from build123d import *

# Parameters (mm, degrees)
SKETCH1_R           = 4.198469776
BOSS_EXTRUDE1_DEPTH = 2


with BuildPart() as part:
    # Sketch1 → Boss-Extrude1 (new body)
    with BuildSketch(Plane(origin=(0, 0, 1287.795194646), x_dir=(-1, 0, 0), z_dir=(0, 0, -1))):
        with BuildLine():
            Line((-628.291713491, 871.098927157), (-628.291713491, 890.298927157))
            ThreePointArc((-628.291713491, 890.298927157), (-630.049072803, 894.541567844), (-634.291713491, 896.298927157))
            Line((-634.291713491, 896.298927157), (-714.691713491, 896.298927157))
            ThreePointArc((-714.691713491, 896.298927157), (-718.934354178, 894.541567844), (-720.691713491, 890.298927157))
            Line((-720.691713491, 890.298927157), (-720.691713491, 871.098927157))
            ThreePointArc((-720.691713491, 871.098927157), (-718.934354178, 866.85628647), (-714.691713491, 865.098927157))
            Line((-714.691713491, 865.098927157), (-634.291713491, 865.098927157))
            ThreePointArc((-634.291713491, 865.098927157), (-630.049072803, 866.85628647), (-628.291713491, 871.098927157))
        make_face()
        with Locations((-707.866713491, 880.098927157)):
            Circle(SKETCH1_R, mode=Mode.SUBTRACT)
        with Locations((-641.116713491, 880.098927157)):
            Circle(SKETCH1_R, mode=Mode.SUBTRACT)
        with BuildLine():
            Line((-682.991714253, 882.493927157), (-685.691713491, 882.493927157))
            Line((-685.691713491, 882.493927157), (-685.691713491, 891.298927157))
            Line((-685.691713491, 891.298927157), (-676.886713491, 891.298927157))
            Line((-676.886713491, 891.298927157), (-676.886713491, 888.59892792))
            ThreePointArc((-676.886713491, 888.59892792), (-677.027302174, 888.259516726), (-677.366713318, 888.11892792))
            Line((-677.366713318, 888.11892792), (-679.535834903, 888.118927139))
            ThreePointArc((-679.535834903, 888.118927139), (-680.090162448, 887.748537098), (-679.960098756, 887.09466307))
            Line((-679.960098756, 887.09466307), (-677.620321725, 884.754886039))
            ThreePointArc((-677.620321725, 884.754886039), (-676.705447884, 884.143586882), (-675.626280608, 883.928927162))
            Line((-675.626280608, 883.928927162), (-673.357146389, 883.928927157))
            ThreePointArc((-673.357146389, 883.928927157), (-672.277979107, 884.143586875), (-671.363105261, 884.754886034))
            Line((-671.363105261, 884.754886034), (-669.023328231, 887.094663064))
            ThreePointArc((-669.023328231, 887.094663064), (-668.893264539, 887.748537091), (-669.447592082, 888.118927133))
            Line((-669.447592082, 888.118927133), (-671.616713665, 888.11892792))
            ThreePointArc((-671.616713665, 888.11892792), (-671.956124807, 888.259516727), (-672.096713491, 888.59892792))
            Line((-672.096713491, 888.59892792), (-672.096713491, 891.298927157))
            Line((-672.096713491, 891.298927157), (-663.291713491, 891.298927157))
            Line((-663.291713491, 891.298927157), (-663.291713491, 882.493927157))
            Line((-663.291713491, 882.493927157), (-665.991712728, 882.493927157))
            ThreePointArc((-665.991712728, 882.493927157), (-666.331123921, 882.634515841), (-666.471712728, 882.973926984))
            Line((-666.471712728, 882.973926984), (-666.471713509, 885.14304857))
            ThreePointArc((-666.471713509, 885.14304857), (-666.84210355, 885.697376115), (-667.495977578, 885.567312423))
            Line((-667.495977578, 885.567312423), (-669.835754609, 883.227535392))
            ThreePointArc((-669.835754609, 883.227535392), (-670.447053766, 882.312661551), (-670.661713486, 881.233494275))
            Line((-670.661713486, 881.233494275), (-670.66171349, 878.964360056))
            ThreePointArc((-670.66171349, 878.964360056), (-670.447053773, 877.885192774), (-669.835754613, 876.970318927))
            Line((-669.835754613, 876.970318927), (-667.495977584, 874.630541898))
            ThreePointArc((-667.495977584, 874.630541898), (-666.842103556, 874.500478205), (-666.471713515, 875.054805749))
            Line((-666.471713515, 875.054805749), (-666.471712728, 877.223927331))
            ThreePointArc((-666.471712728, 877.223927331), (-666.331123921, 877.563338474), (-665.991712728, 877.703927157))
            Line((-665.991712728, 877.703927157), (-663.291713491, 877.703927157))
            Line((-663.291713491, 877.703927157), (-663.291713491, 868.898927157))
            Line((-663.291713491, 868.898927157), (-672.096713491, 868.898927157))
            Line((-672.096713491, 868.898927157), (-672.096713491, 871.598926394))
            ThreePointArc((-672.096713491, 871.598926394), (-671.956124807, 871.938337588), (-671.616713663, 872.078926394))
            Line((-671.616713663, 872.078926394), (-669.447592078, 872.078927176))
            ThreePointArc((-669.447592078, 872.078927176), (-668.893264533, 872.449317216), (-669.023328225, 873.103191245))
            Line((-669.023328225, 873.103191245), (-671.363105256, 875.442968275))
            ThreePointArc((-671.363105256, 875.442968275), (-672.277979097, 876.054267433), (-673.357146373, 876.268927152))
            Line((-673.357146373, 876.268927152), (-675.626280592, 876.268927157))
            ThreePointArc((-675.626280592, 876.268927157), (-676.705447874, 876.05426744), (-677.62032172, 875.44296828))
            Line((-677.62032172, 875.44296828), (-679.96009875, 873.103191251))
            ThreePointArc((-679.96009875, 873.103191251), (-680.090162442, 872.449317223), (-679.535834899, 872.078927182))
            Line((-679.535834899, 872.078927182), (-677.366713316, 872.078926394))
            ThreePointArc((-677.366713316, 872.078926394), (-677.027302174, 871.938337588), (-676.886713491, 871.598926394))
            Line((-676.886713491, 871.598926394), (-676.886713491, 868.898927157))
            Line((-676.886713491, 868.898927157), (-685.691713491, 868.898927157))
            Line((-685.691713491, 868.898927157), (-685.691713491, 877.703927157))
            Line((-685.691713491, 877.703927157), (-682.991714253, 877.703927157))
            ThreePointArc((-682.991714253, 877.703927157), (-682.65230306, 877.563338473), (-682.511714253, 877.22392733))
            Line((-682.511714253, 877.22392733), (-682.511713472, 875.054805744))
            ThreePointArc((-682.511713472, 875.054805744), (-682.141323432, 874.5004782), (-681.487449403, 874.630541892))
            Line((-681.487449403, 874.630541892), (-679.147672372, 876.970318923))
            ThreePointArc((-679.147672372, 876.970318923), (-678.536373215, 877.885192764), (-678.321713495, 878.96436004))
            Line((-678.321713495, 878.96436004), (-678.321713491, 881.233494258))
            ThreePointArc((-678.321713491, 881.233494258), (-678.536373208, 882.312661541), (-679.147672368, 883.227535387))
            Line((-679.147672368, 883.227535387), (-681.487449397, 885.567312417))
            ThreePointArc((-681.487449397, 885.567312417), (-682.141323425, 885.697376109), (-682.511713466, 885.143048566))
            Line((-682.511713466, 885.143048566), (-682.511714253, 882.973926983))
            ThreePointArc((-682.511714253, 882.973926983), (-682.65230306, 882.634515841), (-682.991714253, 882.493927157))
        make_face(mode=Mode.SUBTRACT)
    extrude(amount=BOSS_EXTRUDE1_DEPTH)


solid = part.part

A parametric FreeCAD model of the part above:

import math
import FreeCAD as App
import Part
import Sketcher
from FreeCAD import Vector
Q = App.Units.Quantity

doc = App.newDocument("Part")
body = doc.addObject("PartDesign::Body", "Body")

# Sketch on XY plane
sketch1 = body.newObject("Sketcher::SketchObject", "Sketch")
sketch1.AttachmentSupport = (doc.getObject("XY_Plane"), [""])
sketch1.MapMode = "FlatFace"
sketch1.AttachmentOffset = App.Placement(Vector(0, 0, 1287.795195), App.Rotation())
sketch1.addGeometry([
    Part.LineSegment(Vector(628.291713, 871.098927, 0), Vector(628.291713, 890.298927, 0)),  # 0
    Part.ArcOfCircle(Part.Circle(Vector(634.291713, 890.298927, 0), Vector(0, 0, 1), 6), math.radians(90), math.radians(180)),  # 1
    Part.LineSegment(Vector(634.291713, 896.298927, 0), Vector(714.691713, 896.298927, 0)),  # 2
    Part.ArcOfCircle(Part.Circle(Vector(714.691713, 890.298927, 0), Vector(0, 0, 1), 6), math.radians(0), math.radians(90)),  # 3
    Part.LineSegment(Vector(720.691713, 890.298927, 0), Vector(720.691713, 871.098927, 0)),  # 4
    Part.ArcOfCircle(Part.Circle(Vector(714.691713, 871.098927, 0), Vector(0, 0, 1), 6), math.radians(-90), math.radians(0)),  # 5
    Part.LineSegment(Vector(714.691713, 865.098927, 0), Vector(634.291713, 865.098927, 0)),  # 6
    Part.ArcOfCircle(Part.Circle(Vector(634.291713, 871.098927, 0), Vector(0, 0, 1), 6), math.radians(180), math.radians(270)),  # 7
    Part.ArcOfCircle(Part.Circle(Vector(682.991714, 882.973927, 0), Vector(0, 0, 1), 0.48), math.radians(-179.999979), math.radians(-90)),  # 8
    Part.LineSegment(Vector(682.991714, 882.493927, 0), Vector(685.691713, 882.493927, 0)),  # 9
    Part.LineSegment(Vector(685.691713, 882.493927, 0), Vector(685.691713, 891.298927, 0)),  # 10
    Part.LineSegment(Vector(685.691713, 891.298927, 0), Vector(676.886713, 891.298927, 0)),  # 11
    Part.LineSegment(Vector(676.886713, 891.298927, 0), Vector(676.886713, 888.598928, 0)),  # 12
    Part.ArcOfCircle(Part.Circle(Vector(677.366713, 888.598928, 0), Vector(0, 0, 1), 0.48), math.radians(180), math.radians(269.99998)),  # 13
    Part.LineSegment(Vector(677.366713, 888.118928, 0), Vector(679.535835, 888.118927, 0)),  # 14
    Part.ArcOfCircle(Part.Circle(Vector(679.535835, 887.518927, 0), Vector(0, 0, 1), 0.6), math.radians(-45), math.radians(89.999979)),  # 15
    Part.LineSegment(Vector(679.960099, 887.094663, 0), Vector(677.620322, 884.754886, 0)),  # 16
    Part.ArcOfCircle(Part.Circle(Vector(675.626281, 886.748927, 0), Vector(0, 0, 1), 2.82), math.radians(-90), math.radians(-45)),  # 17
    Part.LineSegment(Vector(675.626281, 883.928927, 0), Vector(673.357146, 883.928927, 0)),  # 18
    Part.ArcOfCircle(Part.Circle(Vector(673.357146, 886.748927, 0), Vector(0, 0, 1), 2.82), math.radians(-135), math.radians(-90)),  # 19
    Part.LineSegment(Vector(671.363105, 884.754886, 0), Vector(669.023328, 887.094663, 0)),  # 20
    Part.ArcOfCircle(Part.Circle(Vector(669.447592, 887.518927, 0), Vector(0, 0, 1), 0.6), math.radians(90.000021), math.radians(225)),  # 21
    Part.LineSegment(Vector(669.447592, 888.118927, 0), Vector(671.616714, 888.118928, 0)),  # 22
    Part.ArcOfCircle(Part.Circle(Vector(671.616713, 888.598928, 0), Vector(0, 0, 1), 0.48), math.radians(-89.999979), math.radians(0)),  # 23
    Part.LineSegment(Vector(672.096713, 888.598928, 0), Vector(672.096713, 891.298927, 0)),  # 24
    Part.LineSegment(Vector(672.096713, 891.298927, 0), Vector(663.291713, 891.298927, 0)),  # 25
    Part.LineSegment(Vector(663.291713, 891.298927, 0), Vector(663.291713, 882.493927, 0)),  # 26
    Part.LineSegment(Vector(663.291713, 882.493927, 0), Vector(665.991713, 882.493927, 0)),  # 27
    Part.ArcOfCircle(Part.Circle(Vector(665.991713, 882.973927, 0), Vector(0, 0, 1), 0.48), math.radians(-90), math.radians(-0.000021)),  # 28
    Part.LineSegment(Vector(666.471713, 882.973927, 0), Vector(666.471714, 885.143049, 0)),  # 29
    Part.ArcOfCircle(Part.Circle(Vector(667.071714, 885.143048, 0), Vector(0, 0, 1), 0.6), math.radians(45), math.radians(179.999979)),  # 30
    Part.LineSegment(Vector(667.495978, 885.567312, 0), Vector(669.835755, 883.227535, 0)),  # 31
    Part.ArcOfCircle(Part.Circle(Vector(667.841713, 881.233494, 0), Vector(0, 0, 1), 2.82), math.radians(0), math.radians(45)),  # 32
    Part.LineSegment(Vector(670.661713, 881.233494, 0), Vector(670.661713, 878.96436, 0)),  # 33
    Part.ArcOfCircle(Part.Circle(Vector(667.841713, 878.96436, 0), Vector(0, 0, 1), 2.82), math.radians(-45), math.radians(0)),  # 34
    Part.LineSegment(Vector(669.835755, 876.970319, 0), Vector(667.495978, 874.630542, 0)),  # 35
    Part.ArcOfCircle(Part.Circle(Vector(667.071714, 875.054806, 0), Vector(0, 0, 1), 0.6), math.radians(-179.999979), math.radians(-45)),  # 36
    Part.LineSegment(Vector(666.471714, 875.054806, 0), Vector(666.471713, 877.223927, 0)),  # 37
    Part.ArcOfCircle(Part.Circle(Vector(665.991713, 877.223927, 0), Vector(0, 0, 1), 0.48), math.radians(0.000021), math.radians(90)),  # 38
    Part.LineSegment(Vector(665.991713, 877.703927, 0), Vector(663.291713, 877.703927, 0)),  # 39
    Part.LineSegment(Vector(663.291713, 877.703927, 0), Vector(663.291713, 868.898927, 0)),  # 40
    Part.LineSegment(Vector(663.291713, 868.898927, 0), Vector(672.096713, 868.898927, 0)),  # 41
    Part.LineSegment(Vector(672.096713, 868.898927, 0), Vector(672.096713, 871.598926, 0)),  # 42
    Part.ArcOfCircle(Part.Circle(Vector(671.616713, 871.598926, 0), Vector(0, 0, 1), 0.48), math.radians(0), math.radians(89.999979)),  # 43
    Part.LineSegment(Vector(671.616714, 872.078926, 0), Vector(669.447592, 872.078927, 0)),  # 44
    Part.ArcOfCircle(Part.Circle(Vector(669.447592, 872.678927, 0), Vector(0, 0, 1), 0.6), math.radians(135), math.radians(269.999979)),  # 45
    Part.LineSegment(Vector(669.023328, 873.103191, 0), Vector(671.363105, 875.442968, 0)),  # 46
    Part.ArcOfCircle(Part.Circle(Vector(673.357146, 873.448927, 0), Vector(0, 0, 1), 2.82), math.radians(90), math.radians(135)),  # 47
    Part.LineSegment(Vector(673.357146, 876.268927, 0), Vector(675.626281, 876.268927, 0)),  # 48
    Part.ArcOfCircle(Part.Circle(Vector(675.626281, 873.448927, 0), Vector(0, 0, 1), 2.82), math.radians(45), math.radians(90)),  # 49
    Part.LineSegment(Vector(677.620322, 875.442968, 0), Vector(679.960099, 873.103191, 0)),  # 50
    Part.ArcOfCircle(Part.Circle(Vector(679.535835, 872.678927, 0), Vector(0, 0, 1), 0.6), math.radians(-89.999979), math.radians(45)),  # 51
    Part.LineSegment(Vector(679.535835, 872.078927, 0), Vector(677.366713, 872.078926, 0)),  # 52
    Part.ArcOfCircle(Part.Circle(Vector(677.366713, 871.598926, 0), Vector(0, 0, 1), 0.48), math.radians(90.000021), math.radians(180)),  # 53
    Part.LineSegment(Vector(676.886713, 871.598926, 0), Vector(676.886713, 868.898927, 0)),  # 54
    Part.LineSegment(Vector(676.886713, 868.898927, 0), Vector(685.691713, 868.898927, 0)),  # 55
    Part.LineSegment(Vector(685.691713, 868.898927, 0), Vector(685.691713, 877.703927, 0)),  # 56
    Part.LineSegment(Vector(685.691713, 877.703927, 0), Vector(682.991714, 877.703927, 0)),  # 57
    Part.ArcOfCircle(Part.Circle(Vector(682.991714, 877.223927, 0), Vector(0, 0, 1), 0.48), math.radians(90), math.radians(179.999979)),  # 58
    Part.LineSegment(Vector(682.511714, 877.223927, 0), Vector(682.511713, 875.054806, 0)),  # 59
    Part.ArcOfCircle(Part.Circle(Vector(681.911713, 875.054806, 0), Vector(0, 0, 1), 0.6), math.radians(-135), math.radians(-0.000021)),  # 60
    Part.LineSegment(Vector(681.487449, 874.630542, 0), Vector(679.147672, 876.970319, 0)),  # 61
    Part.ArcOfCircle(Part.Circle(Vector(681.141714, 878.96436, 0), Vector(0, 0, 1), 2.82), math.radians(-180), math.radians(-135)),  # 62
    Part.LineSegment(Vector(678.321713, 878.96436, 0), Vector(678.321713, 881.233494, 0)),  # 63
    Part.ArcOfCircle(Part.Circle(Vector(681.141713, 881.233494, 0), Vector(0, 0, 1), 2.82), math.radians(135), math.radians(180)),  # 64
    Part.LineSegment(Vector(679.147672, 883.227535, 0), Vector(681.487449, 885.567312, 0)),  # 65
    Part.ArcOfCircle(Part.Circle(Vector(681.911713, 885.143048, 0), Vector(0, 0, 1), 0.6), math.radians(0.000021), math.radians(135)),  # 66
    Part.LineSegment(Vector(682.511713, 885.143049, 0), Vector(682.511714, 882.973927, 0)),  # 67
    Part.Circle(Vector(707.866713, 880.098927, 0), Vector(0, 0, 1), 4.19847),  # 68
    Part.Circle(Vector(641.116713, 880.098927, 0), Vector(0, 0, 1), 4.19847),  # 69
], False)
sketch1.addConstraint([
    Sketcher.Constraint("Tangent", 0, 2, 1, 2),
    Sketcher.Constraint("Tangent", 1, 1, 2, 1),
    Sketcher.Constraint("Tangent", 2, 2, 3, 2),
    Sketcher.Constraint("Tangent", 3, 1, 4, 1),
    Sketcher.Constraint("Tangent", 4, 2, 5, 2),
    Sketcher.Constraint("Tangent", 5, 1, 6, 1),
    Sketcher.Constraint("Tangent", 6, 2, 7, 2),
    Sketcher.Constraint("Tangent", 7, 1, 0, 1),
    Sketcher.Constraint("Tangent", 8, 2, 9, 1),
    Sketcher.Constraint("Coincident", 9, 2, 10, 1),
    Sketcher.Constraint("Coincident", 10, 2, 11, 1),
    Sketcher.Constraint("Coincident", 11, 2, 12, 1),
    Sketcher.Constraint("Tangent", 12, 2, 13, 1),
    Sketcher.Constraint("Tangent", 13, 2, 14, 1),
    Sketcher.Constraint("Tangent", 14, 2, 15, 2),
    Sketcher.Constraint("Tangent", 15, 1, 16, 1),
    Sketcher.Constraint("Tangent", 16, 2, 17, 2),
    Sketcher.Constraint("Tangent", 17, 1, 18, 1),
    Sketcher.Constraint("Tangent", 18, 2, 19, 2),
    Sketcher.Constraint("Tangent", 19, 1, 20, 1),
    Sketcher.Constraint("Tangent", 20, 2, 21, 2),
    Sketcher.Constraint("Tangent", 21, 1, 22, 1),
    Sketcher.Constraint("Tangent", 22, 2, 23, 1),
    Sketcher.Constraint("Tangent", 23, 2, 24, 1),
    Sketcher.Constraint("Coincident", 24, 2, 25, 1),
    Sketcher.Constraint("Coincident", 25, 2, 26, 1),
    Sketcher.Constraint("Coincident", 26, 2, 27, 1),
    Sketcher.Constraint("Tangent", 27, 2, 28, 1),
    Sketcher.Constraint("Tangent", 28, 2, 29, 1),
    Sketcher.Constraint("Tangent", 29, 2, 30, 2),
    Sketcher.Constraint("Tangent", 30, 1, 31, 1),
    Sketcher.Constraint("Tangent", 31, 2, 32, 2),
    Sketcher.Constraint("Tangent", 32, 1, 33, 1),
    Sketcher.Constraint("Tangent", 33, 2, 34, 2),
    Sketcher.Constraint("Tangent", 34, 1, 35, 1),
    Sketcher.Constraint("Tangent", 35, 2, 36, 2),
    Sketcher.Constraint("Tangent", 36, 1, 37, 1),
    Sketcher.Constraint("Tangent", 37, 2, 38, 1),
    Sketcher.Constraint("Tangent", 38, 2, 39, 1),
    Sketcher.Constraint("Coincident", 39, 2, 40, 1),
    Sketcher.Constraint("Coincident", 40, 2, 41, 1),
    Sketcher.Constraint("Coincident", 41, 2, 42, 1),
    Sketcher.Constraint("Tangent", 42, 2, 43, 1),
    Sketcher.Constraint("Tangent", 43, 2, 44, 1),
    Sketcher.Constraint("Tangent", 44, 2, 45, 2),
    Sketcher.Constraint("Tangent", 45, 1, 46, 1),
    Sketcher.Constraint("Tangent", 46, 2, 47, 2),
    Sketcher.Constraint("Tangent", 47, 1, 48, 1),
    Sketcher.Constraint("Tangent", 48, 2, 49, 2),
    Sketcher.Constraint("Tangent", 49, 1, 50, 1),
    Sketcher.Constraint("Tangent", 50, 2, 51, 2),
    Sketcher.Constraint("Tangent", 51, 1, 52, 1),
    Sketcher.Constraint("Tangent", 52, 2, 53, 1),
    Sketcher.Constraint("Tangent", 53, 2, 54, 1),
    Sketcher.Constraint("Coincident", 54, 2, 55, 1),
    Sketcher.Constraint("Coincident", 55, 2, 56, 1),
    Sketcher.Constraint("Coincident", 56, 2, 57, 1),
    Sketcher.Constraint("Tangent", 57, 2, 58, 1),
    Sketcher.Constraint("Tangent", 58, 2, 59, 1),
    Sketcher.Constraint("Tangent", 59, 2, 60, 2),
    Sketcher.Constraint("Tangent", 60, 1, 61, 1),
    Sketcher.Constraint("Tangent", 61, 2, 62, 2),
    Sketcher.Constraint("Tangent", 62, 1, 63, 1),
    Sketcher.Constraint("Tangent", 63, 2, 64, 2),
    Sketcher.Constraint("Tangent", 64, 1, 65, 1),
    Sketcher.Constraint("Tangent", 65, 2, 66, 2),
    Sketcher.Constraint("Tangent", 66, 1, 67, 1),
    Sketcher.Constraint("Tangent", 67, 2, 8, 1),
    Sketcher.Constraint("Vertical", 0),
    Sketcher.Constraint("Horizontal", 2),
    Sketcher.Constraint("Vertical", 4),
    Sketcher.Constraint("Horizontal", 6),
    Sketcher.Constraint("Horizontal", 9),
    Sketcher.Constraint("Vertical", 10),
    Sketcher.Constraint("Horizontal", 11),
    Sketcher.Constraint("Vertical", 12),
    Sketcher.Constraint("Horizontal", 14),
    Sketcher.Constraint("Horizontal", 18),
    Sketcher.Constraint("Horizontal", 22),
    Sketcher.Constraint("Vertical", 24),
    Sketcher.Constraint("Horizontal", 25),
    Sketcher.Constraint("Vertical", 26),
    Sketcher.Constraint("Horizontal", 27),
    Sketcher.Constraint("Vertical", 29),
    Sketcher.Constraint("Vertical", 33),
    Sketcher.Constraint("Vertical", 37),
    Sketcher.Constraint("Horizontal", 39),
    Sketcher.Constraint("Vertical", 40),
    Sketcher.Constraint("Horizontal", 41),
    Sketcher.Constraint("Vertical", 42),
    Sketcher.Constraint("Horizontal", 44),
    Sketcher.Constraint("Horizontal", 48),
    Sketcher.Constraint("Horizontal", 52),
    Sketcher.Constraint("Vertical", 54),
    Sketcher.Constraint("Horizontal", 55),
    Sketcher.Constraint("Vertical", 56),
    Sketcher.Constraint("Horizontal", 57),
    Sketcher.Constraint("Vertical", 59),
    Sketcher.Constraint("Vertical", 63),
    Sketcher.Constraint("Vertical", 67),
    Sketcher.Constraint("Equal", 1, 3),
    Sketcher.Constraint("Equal", 3, 5),
    Sketcher.Constraint("Equal", 5, 7),
    Sketcher.Constraint("Equal", 8, 13),
    Sketcher.Constraint("Equal", 17, 19),
    Sketcher.Constraint("Equal", 15, 21),
    Sketcher.Constraint("Equal", 13, 23),
    Sketcher.Constraint("Equal", 23, 28),
    Sketcher.Constraint("Equal", 21, 30),
    Sketcher.Constraint("Equal", 19, 32),
    Sketcher.Constraint("Equal", 32, 34),
    Sketcher.Constraint("Equal", 30, 36),
    Sketcher.Constraint("Equal", 28, 38),
    Sketcher.Constraint("Equal", 38, 43),
    Sketcher.Constraint("Equal", 36, 45),
    Sketcher.Constraint("Equal", 34, 47),
    Sketcher.Constraint("Equal", 47, 49),
    Sketcher.Constraint("Equal", 45, 51),
    Sketcher.Constraint("Equal", 43, 53),
    Sketcher.Constraint("Equal", 53, 58),
    Sketcher.Constraint("Equal", 51, 60),
    Sketcher.Constraint("Equal", 49, 62),
    Sketcher.Constraint("Equal", 62, 64),
    Sketcher.Constraint("Equal", 60, 66),
    Sketcher.Constraint("Equal", 68, 69),
    Sketcher.Constraint("Perpendicular", 16, 20),
    Sketcher.Constraint("Parallel", 20, 31),
    Sketcher.Constraint("Perpendicular", 31, 35),
    Sketcher.Constraint("Parallel", 35, 46),
    Sketcher.Constraint("Perpendicular", 46, 50),
    Sketcher.Constraint("Parallel", 50, 61),
    Sketcher.Constraint("Perpendicular", 61, 65),
    Sketcher.Constraint("Horizontal", 15, 3, 21, 3),
    Sketcher.Constraint("Horizontal", 8, 3, 28, 3),
    Sketcher.Constraint("Horizontal", 45, 3, 51, 3),
    Sketcher.Constraint("Horizontal", 38, 3, 58, 3),
    Sketcher.Constraint("Horizontal", 36, 3, 60, 3),
    Sketcher.Constraint("Horizontal", 34, 3, 62, 3),
    Sketcher.Constraint("Horizontal", 32, 3, 64, 3),
    Sketcher.Constraint("Horizontal", 30, 3, 66, 3),
    Sketcher.Constraint("Horizontal", 68, 3, 69, 3),
    Sketcher.Constraint("Horizontal", 16, 2, 19, 1),
    Sketcher.Constraint("Horizontal", 11, 2, 24, 2),
    Sketcher.Constraint("Horizontal", 41, 2, 54, 2),
    Sketcher.Constraint("Vertical", 30, 3, 36, 3),
    Sketcher.Constraint("Vertical", 23, 3, 43, 3),
    Sketcher.Constraint("Vertical", 21, 3, 45, 3),
    Sketcher.Constraint("Vertical", 19, 3, 47, 3),
    Sketcher.Constraint("Vertical", 17, 3, 49, 3),
    Sketcher.Constraint("Vertical", 13, 3, 53, 3),
    Sketcher.Constraint("Vertical", 26, 2, 39, 2),
    Sketcher.Constraint("Vertical", 10, 2, 55, 2),
    Sketcher.Constraint("Equal", 14, 22),
    Sketcher.Constraint("Equal", 11, 25),
    Sketcher.Constraint("Equal", 9, 27),
    Sketcher.Constraint("Equal", 55, 10),
    Sketcher.Constraint("Equal", 57, 12),
    Sketcher.Constraint("Equal", 52, 29),
    Sketcher.Constraint("Equal", 48, 33),
    Sketcher.Constraint("Equal", 29, 37),
    Sketcher.Constraint("Equal", 26, 40),
    Sketcher.Constraint("Equal", 24, 42),
    Sketcher.Constraint("Equal", 20, 31),
    Sketcher.Constraint("Radius", 1, Q("6 mm")),
    Sketcher.Constraint("Radius", 15, Q("0.6 mm")),
    Sketcher.Constraint("Radius", 8, Q("0.48 mm")),
    Sketcher.Constraint("Radius", 17, Q("2.82 mm")),
    Sketcher.Constraint("DistanceX", 2, 1, 2, 2, Q("80.4 mm")),
    Sketcher.Constraint("DistanceX", 9, 1, 9, 2, Q("2.699999 mm")),
    Sketcher.Constraint("DistanceY", 0, 1, 0, 2, Q("19.2 mm")),
    Sketcher.Constraint("Diameter", 68, Q("8.39694 mm")),
    Sketcher.Constraint("DistanceX", 11, 2, 11, 1, Q("8.805 mm")),
    Sketcher.Constraint("DistanceX", 14, 1, 14, 2, Q("2.169122 mm")),
    Sketcher.Constraint("DistanceX", -1, 1, 15, 1, Q("679.960099 mm")),
    Sketcher.Constraint("DistanceX", 18, 2, 18, 1, Q("2.269134 mm")),
    Sketcher.Constraint("DistanceX", -1, 1, 17, 3, Q("675.626281 mm")),
    Sketcher.Constraint("DistanceY", -1, 1, 30, 3, Q("885.143048 mm")),
    Sketcher.Constraint("DistanceX", -1, 1, 1, 3, Q("634.291713 mm")),
    Sketcher.Constraint("DistanceY", -1, 1, 1, 3, Q("890.298927 mm")),
    Sketcher.Constraint("DistanceX", -1, 1, 68, 3, Q("707.866713 mm")),
    Sketcher.Constraint("DistanceY", -1, 1, 68, 3, Q("880.098927 mm")),
    Sketcher.Constraint("DistanceX", -1, 1, 69, 3, Q("641.116713 mm")),
])
pad1 = body.newObject("PartDesign::Pad", "Pad")
pad1.Profile = sketch1
pad1.Length = 2
pad1.Reversed = True

doc.recompute()
